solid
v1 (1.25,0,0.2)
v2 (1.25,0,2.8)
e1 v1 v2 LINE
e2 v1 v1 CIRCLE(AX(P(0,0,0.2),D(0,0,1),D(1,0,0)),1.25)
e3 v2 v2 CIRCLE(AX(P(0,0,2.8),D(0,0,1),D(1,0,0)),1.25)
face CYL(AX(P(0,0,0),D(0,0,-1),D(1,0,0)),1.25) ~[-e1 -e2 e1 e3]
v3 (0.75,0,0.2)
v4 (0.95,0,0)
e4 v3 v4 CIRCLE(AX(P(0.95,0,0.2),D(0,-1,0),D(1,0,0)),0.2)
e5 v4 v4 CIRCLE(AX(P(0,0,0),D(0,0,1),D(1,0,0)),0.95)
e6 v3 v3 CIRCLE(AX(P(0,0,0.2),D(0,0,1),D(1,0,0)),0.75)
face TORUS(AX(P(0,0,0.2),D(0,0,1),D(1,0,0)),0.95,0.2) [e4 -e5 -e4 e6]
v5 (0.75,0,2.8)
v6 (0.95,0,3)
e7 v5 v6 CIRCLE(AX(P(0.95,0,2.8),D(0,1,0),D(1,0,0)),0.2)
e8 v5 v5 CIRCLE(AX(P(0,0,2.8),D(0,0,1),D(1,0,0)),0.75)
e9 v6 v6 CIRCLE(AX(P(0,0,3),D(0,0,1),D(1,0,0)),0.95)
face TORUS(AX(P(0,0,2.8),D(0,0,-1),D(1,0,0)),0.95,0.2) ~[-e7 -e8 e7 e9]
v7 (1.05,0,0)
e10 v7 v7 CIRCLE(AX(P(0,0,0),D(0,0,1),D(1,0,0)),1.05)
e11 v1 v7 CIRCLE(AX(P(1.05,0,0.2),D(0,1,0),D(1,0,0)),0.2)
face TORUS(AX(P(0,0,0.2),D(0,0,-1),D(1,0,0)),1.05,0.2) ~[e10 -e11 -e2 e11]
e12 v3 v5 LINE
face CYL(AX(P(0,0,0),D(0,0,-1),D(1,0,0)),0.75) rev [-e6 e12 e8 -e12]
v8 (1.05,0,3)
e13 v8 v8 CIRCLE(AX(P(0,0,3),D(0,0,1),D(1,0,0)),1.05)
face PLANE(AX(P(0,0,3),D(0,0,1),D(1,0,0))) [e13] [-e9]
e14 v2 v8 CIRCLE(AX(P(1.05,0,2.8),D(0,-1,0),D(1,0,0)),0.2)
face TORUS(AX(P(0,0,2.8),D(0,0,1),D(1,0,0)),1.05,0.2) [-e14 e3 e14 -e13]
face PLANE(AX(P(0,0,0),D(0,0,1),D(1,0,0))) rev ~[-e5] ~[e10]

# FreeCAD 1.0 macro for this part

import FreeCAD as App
import Part
import Sketcher

V = App.Vector

doc = App.newDocument("Part")
body = doc.addObject("PartDesign::Body", "Body")

# Sketch on XY plane
sketch1 = body.newObject("Sketcher::SketchObject", "Sketch")
sketch1.AttachmentSupport = (doc.getObject("XY_Plane"), [""])
sketch1.MapMode = "FlatFace"
sketch1.addGeometry(Part.Circle(V(0, 0, 0), V(0, 0, 1), 1.25), False)
sketch1.addGeometry(Part.Circle(V(0, 0, 0), V(0, 0, 1), 0.75), False)
sketch1.addConstraint(Sketcher.Constraint("Coincident", 0, 3, -1, 1))
sketch1.addConstraint(Sketcher.Constraint("Coincident", 1, 3, -1, 1))
sketch1.addConstraint(Sketcher.Constraint("Diameter", 0, 2.5))
sketch1.addConstraint(Sketcher.Constraint("Diameter", 1, 1.5))
pad1 = body.newObject("PartDesign::Pad", "Pad")
pad1.Profile = sketch1
pad1.Length = 3
doc.recompute()

fillet = body.newObject("PartDesign::Fillet", "Fillet")
fillet.Base = (pad1, ["Edge1"])
fillet.UseAllEdges = True
fillet.Radius = 0.2

doc.recompute()
